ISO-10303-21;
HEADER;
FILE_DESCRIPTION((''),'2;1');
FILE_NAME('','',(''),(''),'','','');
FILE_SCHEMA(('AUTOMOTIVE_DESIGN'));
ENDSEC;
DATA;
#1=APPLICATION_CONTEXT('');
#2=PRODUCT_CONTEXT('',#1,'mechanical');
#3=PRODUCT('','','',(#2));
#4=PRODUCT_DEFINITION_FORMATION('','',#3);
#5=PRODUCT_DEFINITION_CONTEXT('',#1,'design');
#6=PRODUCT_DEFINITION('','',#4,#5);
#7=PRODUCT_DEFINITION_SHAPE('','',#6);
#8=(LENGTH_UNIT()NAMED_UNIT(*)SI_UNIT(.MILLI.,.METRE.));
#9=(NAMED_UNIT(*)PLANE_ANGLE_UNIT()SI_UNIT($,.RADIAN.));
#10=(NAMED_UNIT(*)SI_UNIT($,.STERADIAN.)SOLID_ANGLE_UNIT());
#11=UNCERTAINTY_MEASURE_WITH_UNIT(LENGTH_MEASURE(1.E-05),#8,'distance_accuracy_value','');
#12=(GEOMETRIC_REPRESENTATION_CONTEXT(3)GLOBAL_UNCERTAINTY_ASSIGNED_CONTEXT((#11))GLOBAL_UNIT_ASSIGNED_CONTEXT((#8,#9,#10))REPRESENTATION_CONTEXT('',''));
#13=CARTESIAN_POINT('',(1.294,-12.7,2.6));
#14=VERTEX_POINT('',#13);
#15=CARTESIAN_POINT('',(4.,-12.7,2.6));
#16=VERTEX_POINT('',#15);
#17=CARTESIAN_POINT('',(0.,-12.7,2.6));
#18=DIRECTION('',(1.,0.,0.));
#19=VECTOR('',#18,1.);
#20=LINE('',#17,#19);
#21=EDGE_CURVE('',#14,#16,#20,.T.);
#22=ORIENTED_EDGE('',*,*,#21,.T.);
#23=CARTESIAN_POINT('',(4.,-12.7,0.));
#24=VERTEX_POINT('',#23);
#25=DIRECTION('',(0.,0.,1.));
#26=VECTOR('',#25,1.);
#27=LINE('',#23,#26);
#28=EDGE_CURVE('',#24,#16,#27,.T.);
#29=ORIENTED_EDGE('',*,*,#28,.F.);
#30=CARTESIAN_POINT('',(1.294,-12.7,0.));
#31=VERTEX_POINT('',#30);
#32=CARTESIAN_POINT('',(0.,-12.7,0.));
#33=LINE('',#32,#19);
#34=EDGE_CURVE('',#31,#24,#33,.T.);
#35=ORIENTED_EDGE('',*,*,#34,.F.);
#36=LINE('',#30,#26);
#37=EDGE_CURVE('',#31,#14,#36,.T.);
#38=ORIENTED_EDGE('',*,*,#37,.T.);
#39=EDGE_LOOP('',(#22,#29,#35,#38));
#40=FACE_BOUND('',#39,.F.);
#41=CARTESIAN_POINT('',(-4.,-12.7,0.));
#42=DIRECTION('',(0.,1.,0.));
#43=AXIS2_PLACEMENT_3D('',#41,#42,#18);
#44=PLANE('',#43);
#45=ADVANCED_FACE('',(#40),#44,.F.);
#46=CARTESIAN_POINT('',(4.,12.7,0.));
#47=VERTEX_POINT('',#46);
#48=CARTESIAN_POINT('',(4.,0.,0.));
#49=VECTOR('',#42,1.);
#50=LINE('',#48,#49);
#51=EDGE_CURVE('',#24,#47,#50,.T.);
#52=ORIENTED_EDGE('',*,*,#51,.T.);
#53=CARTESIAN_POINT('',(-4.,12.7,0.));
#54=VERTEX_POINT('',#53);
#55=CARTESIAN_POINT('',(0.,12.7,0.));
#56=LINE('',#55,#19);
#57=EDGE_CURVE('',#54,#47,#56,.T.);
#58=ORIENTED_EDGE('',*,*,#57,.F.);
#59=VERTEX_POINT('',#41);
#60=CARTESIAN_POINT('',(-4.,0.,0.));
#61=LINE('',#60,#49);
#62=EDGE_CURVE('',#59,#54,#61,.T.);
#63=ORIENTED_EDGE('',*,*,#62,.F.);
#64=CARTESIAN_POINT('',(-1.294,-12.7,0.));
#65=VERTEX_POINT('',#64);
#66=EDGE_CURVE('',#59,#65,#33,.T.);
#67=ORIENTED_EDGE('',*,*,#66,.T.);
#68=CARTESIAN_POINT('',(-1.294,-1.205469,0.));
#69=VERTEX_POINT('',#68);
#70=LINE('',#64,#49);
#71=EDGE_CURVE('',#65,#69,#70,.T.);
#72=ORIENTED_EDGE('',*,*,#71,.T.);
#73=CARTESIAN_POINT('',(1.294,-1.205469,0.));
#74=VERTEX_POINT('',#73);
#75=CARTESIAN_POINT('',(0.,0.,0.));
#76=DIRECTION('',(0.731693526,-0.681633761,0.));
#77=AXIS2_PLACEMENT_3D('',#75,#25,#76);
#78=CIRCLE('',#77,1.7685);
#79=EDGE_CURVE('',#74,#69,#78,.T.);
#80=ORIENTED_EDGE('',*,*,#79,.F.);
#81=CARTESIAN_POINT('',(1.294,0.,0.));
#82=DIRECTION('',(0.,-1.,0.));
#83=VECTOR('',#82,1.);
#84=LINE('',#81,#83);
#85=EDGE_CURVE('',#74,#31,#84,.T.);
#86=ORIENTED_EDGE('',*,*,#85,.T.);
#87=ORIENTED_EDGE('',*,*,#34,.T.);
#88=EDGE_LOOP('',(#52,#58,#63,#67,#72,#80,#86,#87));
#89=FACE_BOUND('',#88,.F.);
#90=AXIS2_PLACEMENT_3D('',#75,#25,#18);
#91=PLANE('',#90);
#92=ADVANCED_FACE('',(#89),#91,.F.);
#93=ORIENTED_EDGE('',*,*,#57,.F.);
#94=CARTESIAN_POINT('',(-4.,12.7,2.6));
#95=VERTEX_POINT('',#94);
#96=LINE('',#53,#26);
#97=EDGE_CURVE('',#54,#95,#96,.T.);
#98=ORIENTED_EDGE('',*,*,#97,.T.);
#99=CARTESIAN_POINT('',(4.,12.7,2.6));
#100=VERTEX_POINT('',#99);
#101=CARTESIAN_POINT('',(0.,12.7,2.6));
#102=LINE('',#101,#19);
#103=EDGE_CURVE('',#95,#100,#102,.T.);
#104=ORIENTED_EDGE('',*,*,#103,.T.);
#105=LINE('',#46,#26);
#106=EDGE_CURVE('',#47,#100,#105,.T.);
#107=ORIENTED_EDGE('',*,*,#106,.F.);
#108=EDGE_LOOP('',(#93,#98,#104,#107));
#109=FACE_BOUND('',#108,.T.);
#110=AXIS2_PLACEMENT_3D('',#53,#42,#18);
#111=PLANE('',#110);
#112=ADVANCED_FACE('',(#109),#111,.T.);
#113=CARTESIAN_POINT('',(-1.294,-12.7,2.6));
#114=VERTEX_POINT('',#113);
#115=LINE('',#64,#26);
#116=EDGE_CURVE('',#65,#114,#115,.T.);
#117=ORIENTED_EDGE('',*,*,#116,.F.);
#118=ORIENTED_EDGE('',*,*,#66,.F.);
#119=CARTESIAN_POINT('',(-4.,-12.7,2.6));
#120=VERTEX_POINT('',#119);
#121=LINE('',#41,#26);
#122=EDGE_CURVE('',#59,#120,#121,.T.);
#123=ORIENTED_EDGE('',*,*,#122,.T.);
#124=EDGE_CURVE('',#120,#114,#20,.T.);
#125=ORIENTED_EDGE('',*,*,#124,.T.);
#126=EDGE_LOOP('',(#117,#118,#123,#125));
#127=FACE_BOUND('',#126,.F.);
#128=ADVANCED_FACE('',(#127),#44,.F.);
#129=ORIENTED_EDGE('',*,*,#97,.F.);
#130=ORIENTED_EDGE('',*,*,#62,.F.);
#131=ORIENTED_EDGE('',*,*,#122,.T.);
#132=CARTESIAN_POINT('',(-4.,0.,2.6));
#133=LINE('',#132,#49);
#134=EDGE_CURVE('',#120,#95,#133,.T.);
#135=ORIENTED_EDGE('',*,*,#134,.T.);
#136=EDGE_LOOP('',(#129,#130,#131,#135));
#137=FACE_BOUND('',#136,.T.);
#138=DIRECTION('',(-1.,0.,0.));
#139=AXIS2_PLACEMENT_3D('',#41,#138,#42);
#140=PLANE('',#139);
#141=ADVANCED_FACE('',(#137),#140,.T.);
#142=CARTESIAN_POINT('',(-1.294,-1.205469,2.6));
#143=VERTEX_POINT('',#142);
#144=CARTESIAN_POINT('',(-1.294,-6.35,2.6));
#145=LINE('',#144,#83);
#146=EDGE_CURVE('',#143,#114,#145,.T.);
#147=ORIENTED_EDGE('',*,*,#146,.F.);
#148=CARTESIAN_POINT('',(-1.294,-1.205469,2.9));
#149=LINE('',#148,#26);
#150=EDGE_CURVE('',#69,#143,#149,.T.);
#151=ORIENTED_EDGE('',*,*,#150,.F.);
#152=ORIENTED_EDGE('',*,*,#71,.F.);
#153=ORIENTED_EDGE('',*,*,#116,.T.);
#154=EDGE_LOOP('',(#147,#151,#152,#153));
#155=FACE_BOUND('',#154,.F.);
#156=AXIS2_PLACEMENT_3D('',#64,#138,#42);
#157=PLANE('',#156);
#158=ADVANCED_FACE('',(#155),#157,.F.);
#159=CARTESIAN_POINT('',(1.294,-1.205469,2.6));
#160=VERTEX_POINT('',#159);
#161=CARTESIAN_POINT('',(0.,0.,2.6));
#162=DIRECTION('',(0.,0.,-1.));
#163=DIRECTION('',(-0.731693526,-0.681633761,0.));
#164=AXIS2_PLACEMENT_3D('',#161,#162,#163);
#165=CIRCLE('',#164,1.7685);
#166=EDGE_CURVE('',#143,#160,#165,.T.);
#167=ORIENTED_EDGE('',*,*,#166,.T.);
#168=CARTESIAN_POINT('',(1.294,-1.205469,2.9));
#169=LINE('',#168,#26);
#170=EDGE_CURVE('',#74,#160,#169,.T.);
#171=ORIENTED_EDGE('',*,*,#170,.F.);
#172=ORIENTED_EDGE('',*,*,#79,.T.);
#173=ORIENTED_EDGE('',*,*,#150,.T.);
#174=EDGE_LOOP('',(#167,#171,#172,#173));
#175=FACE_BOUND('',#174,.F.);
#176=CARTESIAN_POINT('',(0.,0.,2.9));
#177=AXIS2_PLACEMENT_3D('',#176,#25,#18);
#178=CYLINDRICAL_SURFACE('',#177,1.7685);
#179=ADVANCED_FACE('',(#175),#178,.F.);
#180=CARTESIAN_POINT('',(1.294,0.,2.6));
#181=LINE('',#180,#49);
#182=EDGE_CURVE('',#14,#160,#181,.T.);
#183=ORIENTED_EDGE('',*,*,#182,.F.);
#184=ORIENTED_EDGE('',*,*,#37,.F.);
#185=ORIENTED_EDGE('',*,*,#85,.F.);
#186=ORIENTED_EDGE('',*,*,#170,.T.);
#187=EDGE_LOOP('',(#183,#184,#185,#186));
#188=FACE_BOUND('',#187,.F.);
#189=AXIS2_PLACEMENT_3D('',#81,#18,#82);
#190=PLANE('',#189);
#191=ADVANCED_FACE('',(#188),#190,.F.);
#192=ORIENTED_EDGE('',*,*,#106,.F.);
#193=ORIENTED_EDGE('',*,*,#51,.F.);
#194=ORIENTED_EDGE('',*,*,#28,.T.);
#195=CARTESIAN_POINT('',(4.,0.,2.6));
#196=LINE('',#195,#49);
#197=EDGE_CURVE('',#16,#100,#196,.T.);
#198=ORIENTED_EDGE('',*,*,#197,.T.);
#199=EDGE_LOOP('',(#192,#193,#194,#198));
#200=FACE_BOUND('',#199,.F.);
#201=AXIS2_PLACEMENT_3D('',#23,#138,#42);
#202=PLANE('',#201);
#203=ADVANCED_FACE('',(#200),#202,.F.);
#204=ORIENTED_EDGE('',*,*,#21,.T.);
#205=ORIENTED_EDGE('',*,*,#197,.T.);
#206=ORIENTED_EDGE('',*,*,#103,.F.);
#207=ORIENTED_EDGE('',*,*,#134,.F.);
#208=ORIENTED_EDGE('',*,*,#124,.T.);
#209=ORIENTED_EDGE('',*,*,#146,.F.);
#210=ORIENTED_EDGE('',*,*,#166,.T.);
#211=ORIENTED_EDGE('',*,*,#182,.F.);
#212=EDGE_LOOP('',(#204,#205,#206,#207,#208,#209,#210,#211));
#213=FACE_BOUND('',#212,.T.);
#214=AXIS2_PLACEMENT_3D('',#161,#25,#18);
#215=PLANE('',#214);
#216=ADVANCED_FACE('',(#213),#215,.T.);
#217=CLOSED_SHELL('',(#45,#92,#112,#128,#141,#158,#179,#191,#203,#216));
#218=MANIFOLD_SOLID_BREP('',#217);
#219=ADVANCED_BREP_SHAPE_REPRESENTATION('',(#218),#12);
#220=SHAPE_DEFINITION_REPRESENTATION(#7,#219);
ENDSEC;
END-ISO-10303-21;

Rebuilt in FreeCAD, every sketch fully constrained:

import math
import FreeCAD as App
import Part
import Sketcher

V = App.Vector
Q = App.Units.Quantity


def add_polygon(sketch, points):
    """Adds a closed chain of lines whose ends are joined by coincident constraints."""
    first, n = sketch.GeometryCount, len(points)
    for a, b in zip(points, points[1:] + points[:1]):
        sketch.addGeometry(Part.LineSegment(App.Vector(*a, 0), App.Vector(*b, 0)), False)
    for i in range(n):
        sketch.addConstraint(Sketcher.Constraint("Coincident", first + i, 2, first + (i + 1) % n, 1))

doc = App.newDocument("Part")
body = doc.addObject("PartDesign::Body", "Body")

sketch1 = body.newObject("Sketcher::SketchObject", "Sketch")
sketch1.AttachmentSupport = (doc.getObject("XY_Plane"), [""])
sketch1.MapMode = "FlatFace"
add_polygon(sketch1, [(-4, 13), (-4, -13), (4, -13), (4, 13)])
sketch1.addConstraint([
    Sketcher.Constraint("Vertical", 0),
    Sketcher.Constraint("Horizontal", 1),
    Sketcher.Constraint("Vertical", 2),
    Sketcher.Constraint("Horizontal", 3),
    Sketcher.Constraint("Symmetric", 0, 2, 2, 2, -1, 1),
    Sketcher.Constraint("DistanceX", 1, 1, 1, 2, Q("8 mm")),
    Sketcher.Constraint("DistanceY", 0, 2, 0, 1, Q("25.4 mm")),
])
pad1 = body.newObject("PartDesign::Pad", "Pad")
pad1.Profile = sketch1
pad1.Length = 2.6

sketch2 = body.newObject("Sketcher::SketchObject", "Sketch001")
sketch2.AttachmentSupport = (doc.getObject("XY_Plane"), [""])
sketch2.MapMode = "FlatFace"
sketch2.addGeometry([
    Part.ArcOfCircle(Part.Circle(V(0, 0, 0), V(0, 0, 1), 1.3), math.radians(0), math.radians(180)),
    Part.LineSegment(V(1.3, 0, 0), V(1.3, -12.7, 0)),
    Part.LineSegment(V(1.3, -12.7, 0), V(-1.3, -12.7, 0)),
    Part.LineSegment(V(-1.3, -12.7, 0), V(-1.3, 0, 0)),
], False)
sketch2.addConstraint([
    Sketcher.Constraint("Tangent", 0, 1, 1, 1),
    Sketcher.Constraint("Coincident", 1, 2, 2, 1),
    Sketcher.Constraint("Coincident", 2, 2, 3, 1),
    Sketcher.Constraint("Tangent", 3, 2, 0, 2),
    Sketcher.Constraint("Vertical", 1),
    Sketcher.Constraint("Horizontal", 2),
    Sketcher.Constraint("Vertical", 3),
    Sketcher.Constraint("Coincident", 0, 3, -1, 1),
    Sketcher.Constraint("DistanceY", 1, 2, 1, 1, Q("12.7 mm")),
    Sketcher.Constraint("Radius", 0, Q("1.294 mm")),
])
pocket1 = body.newObject("PartDesign::Pocket", "Pocket")
pocket1.Profile = sketch2
pocket1.Type = "ThroughAll"
pocket1.Reversed = True

sketch3 = body.newObject("Sketcher::SketchObject", "Sketch002")
sketch3.AttachmentSupport = (doc.getObject("XY_Plane"), [""])
sketch3.MapMode = "FlatFace"
sketch3.AttachmentOffset = App.Placement(V(0, 0, 2.9), App.Rotation())
sketch3.addGeometry(Part.Circle(V(0, 0, 0), V(0, 0, 1), 1.8), False)
sketch3.addConstraint([
    Sketcher.Constraint("Coincident", 0, 3, -1, 1),
    Sketcher.Constraint("Diameter", 0, Q("3.537 mm")),
])
pocket2 = body.newObject("PartDesign::Pocket", "Pocket001")
pocket2.Profile = sketch3
pocket2.Type = "ThroughAll"

doc.recompute()
